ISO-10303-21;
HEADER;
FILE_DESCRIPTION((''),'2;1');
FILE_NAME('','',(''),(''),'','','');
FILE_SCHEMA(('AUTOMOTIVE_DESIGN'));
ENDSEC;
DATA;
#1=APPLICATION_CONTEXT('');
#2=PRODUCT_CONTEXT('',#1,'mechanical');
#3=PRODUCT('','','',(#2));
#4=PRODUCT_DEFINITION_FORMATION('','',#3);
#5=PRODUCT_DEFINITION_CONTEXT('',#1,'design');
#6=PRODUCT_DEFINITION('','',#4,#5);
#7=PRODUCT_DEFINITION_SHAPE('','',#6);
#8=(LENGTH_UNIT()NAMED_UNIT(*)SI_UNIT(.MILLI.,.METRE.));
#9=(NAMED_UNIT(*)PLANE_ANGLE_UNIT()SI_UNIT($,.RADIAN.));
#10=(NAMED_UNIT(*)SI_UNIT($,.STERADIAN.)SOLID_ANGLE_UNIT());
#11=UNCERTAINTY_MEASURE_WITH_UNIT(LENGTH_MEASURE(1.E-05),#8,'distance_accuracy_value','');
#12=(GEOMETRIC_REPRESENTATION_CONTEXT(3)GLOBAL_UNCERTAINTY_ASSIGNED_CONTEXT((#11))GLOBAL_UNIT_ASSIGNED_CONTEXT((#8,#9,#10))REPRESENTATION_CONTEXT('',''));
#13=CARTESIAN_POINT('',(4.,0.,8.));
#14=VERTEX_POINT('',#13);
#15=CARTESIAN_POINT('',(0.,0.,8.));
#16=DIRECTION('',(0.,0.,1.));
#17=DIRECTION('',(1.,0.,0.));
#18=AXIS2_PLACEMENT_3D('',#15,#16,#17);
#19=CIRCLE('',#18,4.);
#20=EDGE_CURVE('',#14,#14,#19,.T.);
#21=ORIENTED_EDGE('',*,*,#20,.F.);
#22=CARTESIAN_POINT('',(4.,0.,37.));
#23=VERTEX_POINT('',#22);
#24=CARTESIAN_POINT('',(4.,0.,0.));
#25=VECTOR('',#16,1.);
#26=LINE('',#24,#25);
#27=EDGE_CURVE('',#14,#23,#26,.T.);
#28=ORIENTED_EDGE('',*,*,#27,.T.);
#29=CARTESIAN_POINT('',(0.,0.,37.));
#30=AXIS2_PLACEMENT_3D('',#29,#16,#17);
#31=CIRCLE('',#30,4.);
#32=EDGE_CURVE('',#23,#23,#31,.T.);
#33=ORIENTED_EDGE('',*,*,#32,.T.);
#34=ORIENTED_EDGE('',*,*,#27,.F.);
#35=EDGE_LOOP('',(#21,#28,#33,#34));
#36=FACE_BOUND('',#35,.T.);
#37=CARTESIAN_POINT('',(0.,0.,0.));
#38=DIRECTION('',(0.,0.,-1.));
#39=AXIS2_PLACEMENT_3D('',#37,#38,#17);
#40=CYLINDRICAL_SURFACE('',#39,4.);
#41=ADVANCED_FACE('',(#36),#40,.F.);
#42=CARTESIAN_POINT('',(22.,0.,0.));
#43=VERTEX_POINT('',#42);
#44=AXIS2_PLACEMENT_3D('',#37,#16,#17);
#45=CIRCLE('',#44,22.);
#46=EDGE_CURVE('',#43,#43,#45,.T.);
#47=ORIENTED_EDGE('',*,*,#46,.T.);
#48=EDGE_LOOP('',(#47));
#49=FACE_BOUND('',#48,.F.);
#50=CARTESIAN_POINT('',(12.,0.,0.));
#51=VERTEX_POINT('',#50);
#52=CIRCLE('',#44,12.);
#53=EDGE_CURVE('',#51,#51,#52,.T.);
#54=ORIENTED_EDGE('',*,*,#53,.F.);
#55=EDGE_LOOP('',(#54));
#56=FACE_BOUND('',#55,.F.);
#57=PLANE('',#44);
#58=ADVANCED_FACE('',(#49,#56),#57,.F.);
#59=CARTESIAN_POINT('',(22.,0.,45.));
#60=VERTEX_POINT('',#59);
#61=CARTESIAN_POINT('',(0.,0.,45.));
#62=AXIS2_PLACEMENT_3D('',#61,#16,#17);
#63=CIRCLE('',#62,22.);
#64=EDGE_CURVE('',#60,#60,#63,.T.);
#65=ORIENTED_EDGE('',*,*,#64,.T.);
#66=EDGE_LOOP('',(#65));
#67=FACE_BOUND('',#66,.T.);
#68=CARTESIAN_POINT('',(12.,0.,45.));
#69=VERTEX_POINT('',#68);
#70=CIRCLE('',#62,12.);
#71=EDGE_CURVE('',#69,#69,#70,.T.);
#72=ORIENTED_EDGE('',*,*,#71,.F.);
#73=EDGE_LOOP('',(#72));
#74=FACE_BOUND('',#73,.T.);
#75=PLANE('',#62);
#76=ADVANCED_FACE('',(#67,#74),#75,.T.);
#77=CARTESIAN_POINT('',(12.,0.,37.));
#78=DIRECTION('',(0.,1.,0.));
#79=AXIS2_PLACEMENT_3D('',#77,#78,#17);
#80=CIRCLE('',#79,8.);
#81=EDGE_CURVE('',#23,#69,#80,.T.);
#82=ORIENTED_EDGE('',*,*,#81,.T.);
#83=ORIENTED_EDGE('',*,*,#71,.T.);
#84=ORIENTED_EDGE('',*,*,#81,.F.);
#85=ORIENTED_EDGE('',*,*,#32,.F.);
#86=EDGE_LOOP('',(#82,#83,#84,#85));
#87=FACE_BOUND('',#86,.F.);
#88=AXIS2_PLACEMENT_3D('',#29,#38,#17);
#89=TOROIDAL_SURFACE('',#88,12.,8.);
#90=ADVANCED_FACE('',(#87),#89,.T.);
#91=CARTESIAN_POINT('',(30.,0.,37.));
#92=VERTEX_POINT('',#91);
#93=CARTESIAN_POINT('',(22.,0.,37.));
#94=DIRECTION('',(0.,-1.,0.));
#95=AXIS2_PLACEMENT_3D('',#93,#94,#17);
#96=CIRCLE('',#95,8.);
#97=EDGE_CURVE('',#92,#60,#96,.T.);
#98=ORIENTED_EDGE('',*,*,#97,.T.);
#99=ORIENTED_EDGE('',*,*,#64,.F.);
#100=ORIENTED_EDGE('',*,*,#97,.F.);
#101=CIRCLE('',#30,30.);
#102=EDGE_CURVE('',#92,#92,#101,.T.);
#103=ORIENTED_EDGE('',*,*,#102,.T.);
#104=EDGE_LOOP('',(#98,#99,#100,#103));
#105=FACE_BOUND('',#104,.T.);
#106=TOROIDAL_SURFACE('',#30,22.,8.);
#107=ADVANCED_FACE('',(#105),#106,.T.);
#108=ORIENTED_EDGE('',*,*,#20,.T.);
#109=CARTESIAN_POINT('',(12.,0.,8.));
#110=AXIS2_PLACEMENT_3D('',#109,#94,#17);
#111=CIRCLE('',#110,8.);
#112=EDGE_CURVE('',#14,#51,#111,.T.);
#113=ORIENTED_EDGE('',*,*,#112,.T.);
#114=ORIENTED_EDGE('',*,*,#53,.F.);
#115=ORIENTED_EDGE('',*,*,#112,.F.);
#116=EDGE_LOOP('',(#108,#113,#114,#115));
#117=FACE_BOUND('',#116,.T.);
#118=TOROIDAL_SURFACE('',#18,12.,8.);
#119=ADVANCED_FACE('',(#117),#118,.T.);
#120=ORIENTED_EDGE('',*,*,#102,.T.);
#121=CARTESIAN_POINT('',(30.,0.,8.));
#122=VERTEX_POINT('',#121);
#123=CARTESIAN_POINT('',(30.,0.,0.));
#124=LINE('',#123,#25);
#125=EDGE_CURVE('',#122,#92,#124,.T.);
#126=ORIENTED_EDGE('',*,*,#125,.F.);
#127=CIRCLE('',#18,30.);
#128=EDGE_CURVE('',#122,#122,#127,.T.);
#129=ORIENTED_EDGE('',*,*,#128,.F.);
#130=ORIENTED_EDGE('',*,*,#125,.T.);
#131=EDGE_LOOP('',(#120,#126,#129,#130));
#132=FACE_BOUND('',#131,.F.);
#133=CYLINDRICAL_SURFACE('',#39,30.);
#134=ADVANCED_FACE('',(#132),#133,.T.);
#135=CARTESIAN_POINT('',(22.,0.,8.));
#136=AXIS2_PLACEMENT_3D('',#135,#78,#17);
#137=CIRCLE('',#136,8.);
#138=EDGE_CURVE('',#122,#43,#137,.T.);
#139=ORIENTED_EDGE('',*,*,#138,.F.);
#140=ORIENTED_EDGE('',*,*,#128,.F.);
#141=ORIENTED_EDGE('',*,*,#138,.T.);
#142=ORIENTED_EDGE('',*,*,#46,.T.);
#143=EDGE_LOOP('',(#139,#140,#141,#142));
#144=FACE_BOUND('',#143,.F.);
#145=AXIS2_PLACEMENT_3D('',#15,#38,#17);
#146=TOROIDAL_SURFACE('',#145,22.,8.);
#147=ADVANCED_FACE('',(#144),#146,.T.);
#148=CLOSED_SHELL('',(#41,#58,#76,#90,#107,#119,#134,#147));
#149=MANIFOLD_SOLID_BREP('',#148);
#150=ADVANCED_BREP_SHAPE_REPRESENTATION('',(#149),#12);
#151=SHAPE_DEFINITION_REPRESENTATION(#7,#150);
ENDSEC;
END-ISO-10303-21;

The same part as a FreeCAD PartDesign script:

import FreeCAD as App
import Part
import Sketcher

V = App.Vector
Q = App.Units.Quantity


def edges_at(feature, points):
    """Names of the edges that pass closest to the given points."""
    edges = feature.Shape.Edges
    near = lambda p: min(range(len(edges)), key=lambda i: edges[i].distToShape(Part.Vertex(*p))[0])
    return sorted({f"Edge{near(p) + 1}" for p in points})

doc = App.newDocument("Part")
body = doc.addObject("PartDesign::Body", "Body")

# Sketch on XY plane
sketch1 = body.newObject("Sketcher::SketchObject", "Sketch")
sketch1.AttachmentSupport = (doc.getObject("XY_Plane"), [""])
sketch1.MapMode = "FlatFace"
sketch1.addGeometry(Part.Circle(V(0, 0, 0), V(0, 0, 1), 30), False)
sketch1.addGeometry(Part.Circle(V(0, 0, 0), V(0, 0, 1), 4), False)
sketch1.addConstraint(Sketcher.Constraint("Coincident", 0, 3, -1, 1))
sketch1.addConstraint(Sketcher.Constraint("Coincident", 1, 3, -1, 1))
sketch1.addConstraint(Sketcher.Constraint("Diameter", 0, Q("60 mm")))
sketch1.addConstraint(Sketcher.Constraint("Diameter", 1, Q("8 mm")))
pad1 = body.newObject("PartDesign::Pad", "Pad")
pad1.Profile = sketch1
pad1.Length = 45
doc.recompute()

fillet = body.newObject("PartDesign::Fillet", "Fillet")
fillet.Base = (pad1, edges_at(pad1, [
    (-30, 0, 45),
    (-30, 0, 0),
    (-4, 0, 45),
    (-4, 0, 0),
]))
fillet.Radius = 8

doc.recompute()
